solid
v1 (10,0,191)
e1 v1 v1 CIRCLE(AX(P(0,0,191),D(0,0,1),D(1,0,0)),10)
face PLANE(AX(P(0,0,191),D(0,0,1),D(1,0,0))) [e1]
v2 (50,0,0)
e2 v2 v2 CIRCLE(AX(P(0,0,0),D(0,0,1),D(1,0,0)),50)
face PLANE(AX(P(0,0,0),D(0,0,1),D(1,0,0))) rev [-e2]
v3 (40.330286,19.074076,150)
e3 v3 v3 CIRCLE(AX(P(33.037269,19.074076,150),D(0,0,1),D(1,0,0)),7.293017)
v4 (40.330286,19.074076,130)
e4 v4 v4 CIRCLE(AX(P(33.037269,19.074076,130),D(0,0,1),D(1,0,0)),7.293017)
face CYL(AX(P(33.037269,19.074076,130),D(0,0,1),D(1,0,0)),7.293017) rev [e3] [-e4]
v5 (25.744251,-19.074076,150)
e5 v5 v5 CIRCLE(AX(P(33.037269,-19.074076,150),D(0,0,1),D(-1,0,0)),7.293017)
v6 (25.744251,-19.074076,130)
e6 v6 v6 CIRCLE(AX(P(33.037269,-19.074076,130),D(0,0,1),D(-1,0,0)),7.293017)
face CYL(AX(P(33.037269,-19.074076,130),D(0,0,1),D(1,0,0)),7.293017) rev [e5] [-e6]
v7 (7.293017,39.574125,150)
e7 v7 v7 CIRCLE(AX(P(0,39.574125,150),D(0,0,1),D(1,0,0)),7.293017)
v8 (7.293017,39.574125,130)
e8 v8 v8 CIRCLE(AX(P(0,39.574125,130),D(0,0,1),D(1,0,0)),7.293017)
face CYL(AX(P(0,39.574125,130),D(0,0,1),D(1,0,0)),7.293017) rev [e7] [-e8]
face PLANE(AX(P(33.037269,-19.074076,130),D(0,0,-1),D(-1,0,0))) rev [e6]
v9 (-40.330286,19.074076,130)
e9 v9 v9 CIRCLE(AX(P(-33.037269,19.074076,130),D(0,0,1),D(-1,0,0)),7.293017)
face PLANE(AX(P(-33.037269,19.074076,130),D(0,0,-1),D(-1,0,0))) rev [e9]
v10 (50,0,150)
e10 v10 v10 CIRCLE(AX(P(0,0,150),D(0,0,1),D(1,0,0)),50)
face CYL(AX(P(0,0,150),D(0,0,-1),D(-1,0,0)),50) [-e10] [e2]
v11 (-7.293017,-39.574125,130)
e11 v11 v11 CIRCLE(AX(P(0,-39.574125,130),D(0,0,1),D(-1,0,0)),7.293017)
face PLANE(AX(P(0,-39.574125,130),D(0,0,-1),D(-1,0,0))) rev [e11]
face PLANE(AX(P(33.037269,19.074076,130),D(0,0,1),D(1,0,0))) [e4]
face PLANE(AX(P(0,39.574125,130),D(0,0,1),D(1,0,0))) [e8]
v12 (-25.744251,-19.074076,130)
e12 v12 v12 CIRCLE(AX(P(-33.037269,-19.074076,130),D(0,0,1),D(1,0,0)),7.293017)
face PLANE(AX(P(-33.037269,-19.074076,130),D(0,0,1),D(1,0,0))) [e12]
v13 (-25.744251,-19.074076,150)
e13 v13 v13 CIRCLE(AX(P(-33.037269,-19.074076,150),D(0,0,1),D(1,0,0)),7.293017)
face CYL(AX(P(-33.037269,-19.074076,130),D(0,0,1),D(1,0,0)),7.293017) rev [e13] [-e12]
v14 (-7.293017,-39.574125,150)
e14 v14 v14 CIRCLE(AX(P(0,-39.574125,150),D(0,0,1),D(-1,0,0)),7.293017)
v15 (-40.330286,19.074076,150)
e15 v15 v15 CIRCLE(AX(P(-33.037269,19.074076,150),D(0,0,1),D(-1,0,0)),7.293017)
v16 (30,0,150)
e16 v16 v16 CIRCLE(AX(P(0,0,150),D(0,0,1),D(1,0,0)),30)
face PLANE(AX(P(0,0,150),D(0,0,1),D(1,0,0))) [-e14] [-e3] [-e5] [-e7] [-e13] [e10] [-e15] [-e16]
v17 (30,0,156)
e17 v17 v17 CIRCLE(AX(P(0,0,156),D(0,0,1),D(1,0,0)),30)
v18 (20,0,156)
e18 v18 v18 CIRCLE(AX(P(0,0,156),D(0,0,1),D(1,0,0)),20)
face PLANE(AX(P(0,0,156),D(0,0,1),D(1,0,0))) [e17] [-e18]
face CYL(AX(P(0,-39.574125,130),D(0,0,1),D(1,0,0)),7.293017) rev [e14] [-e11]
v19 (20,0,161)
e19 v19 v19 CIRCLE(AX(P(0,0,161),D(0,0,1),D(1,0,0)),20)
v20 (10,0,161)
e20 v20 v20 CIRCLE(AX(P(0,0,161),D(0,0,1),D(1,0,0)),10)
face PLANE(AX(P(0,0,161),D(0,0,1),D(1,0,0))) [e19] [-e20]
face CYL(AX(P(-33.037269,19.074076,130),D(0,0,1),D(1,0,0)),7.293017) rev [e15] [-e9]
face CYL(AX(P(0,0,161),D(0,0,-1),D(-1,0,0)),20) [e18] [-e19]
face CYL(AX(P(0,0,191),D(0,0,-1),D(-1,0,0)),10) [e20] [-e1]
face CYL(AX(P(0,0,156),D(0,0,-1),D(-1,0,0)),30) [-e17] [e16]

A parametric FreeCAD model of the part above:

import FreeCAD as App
import Part
import Sketcher

V = App.Vector

doc = App.newDocument("Part")
params = doc.addObject("Spreadsheet::Sheet", "Params")
for row, (alias, value) in enumerate([
    ("sketch1_diameter", "100 mm"),
    ("pad1_length", "150 mm"),
    ("sketch2_diameter", "60 mm"),
    ("pad2_length", "6 mm"),
    ("sketch3_diameter", "40 mm"),
    ("pad3_length", "5 mm"),
    ("sketch4_diameter", "20 mm"),
    ("pad4_length", "30 mm"),
    ("pocket1_length", "20 mm"),
], start=1):
    params.set(f"A{row}", alias)
    params.set(f"B{row}", "=" + value)
    params.setAlias(f"B{row}", alias)

body = doc.addObject("PartDesign::Body", "Body")

# Sketch on XY plane
sketch1 = body.newObject("Sketcher::SketchObject", "Sketch")
sketch1.AttachmentSupport = (doc.getObject("XY_Plane"), [""])
sketch1.MapMode = "FlatFace"
sketch1.addGeometry(Part.Circle(V(0, 0, 0), V(0, 0, 1), 50), False)
sketch1.addConstraint([
    Sketcher.Constraint("Coincident", 0, 3, -1, 1),
    Sketcher.Constraint("Diameter", 0, 100.0),
])
sketch1.setExpression("Constraints[1]", "Params.sketch1_diameter")
pad1 = body.newObject("PartDesign::Pad", "Pad")
pad1.Profile = sketch1
pad1.setExpression("Length", "Params.pad1_length")

# Sketch on XY plane
sketch2 = body.newObject("Sketcher::SketchObject", "Sketch001")
sketch2.AttachmentSupport = (doc.getObject("XY_Plane"), [""])
sketch2.MapMode = "FlatFace"
sketch2.AttachmentOffset = App.Placement(V(0, 0, 150), App.Rotation())
sketch2.addGeometry(Part.Circle(V(0, 0, 0), V(0, 0, 1), 30), False)
sketch2.addConstraint([
    Sketcher.Constraint("Coincident", 0, 3, -1, 1),
    Sketcher.Constraint("Diameter", 0, 60.0),
])
sketch2.setExpression("Constraints[1]", "Params.sketch2_diameter")
pad2 = body.newObject("PartDesign::Pad", "Pad001")
pad2.Profile = sketch2
pad2.setExpression("Length", "Params.pad2_length")

# Sketch on XY plane
sketch3 = body.newObject("Sketcher::SketchObject", "Sketch002")
sketch3.AttachmentSupport = (doc.getObject("XY_Plane"), [""])
sketch3.MapMode = "FlatFace"
sketch3.AttachmentOffset = App.Placement(V(0, 0, 156), App.Rotation())
sketch3.addGeometry(Part.Circle(V(0, 0, 0), V(0, 0, 1), 20), False)
sketch3.addConstraint([
    Sketcher.Constraint("Coincident", 0, 3, -1, 1),
    Sketcher.Constraint("Diameter", 0, 40.0),
])
sketch3.setExpression("Constraints[1]", "Params.sketch3_diameter")
pad3 = body.newObject("PartDesign::Pad", "Pad002")
pad3.Profile = sketch3
pad3.setExpression("Length", "Params.pad3_length")

# Sketch on XY plane
sketch4 = body.newObject("Sketcher::SketchObject", "Sketch003")
sketch4.AttachmentSupport = (doc.getObject("XY_Plane"), [""])
sketch4.MapMode = "FlatFace"
sketch4.AttachmentOffset = App.Placement(V(0, 0, 161), App.Rotation())
sketch4.addGeometry(Part.Circle(V(0, 0, 0), V(0, 0, 1), 10), False)
sketch4.addConstraint([
    Sketcher.Constraint("Coincident", 0, 3, -1, 1),
    Sketcher.Constraint("Diameter", 0, 20.0),
])
sketch4.setExpression("Constraints[1]", "Params.sketch4_diameter")
pad4 = body.newObject("PartDesign::Pad", "Pad003")
pad4.Profile = sketch4
pad4.setExpression("Length", "Params.pad4_length")

# Sketch on XY plane
sketch5 = body.newObject("Sketcher::SketchObject", "Sketch004")
sketch5.AttachmentSupport = (doc.getObject("XY_Plane"), [""])
sketch5.MapMode = "FlatFace"
sketch5.AttachmentOffset = App.Placement(V(0, 0, 150), App.Rotation())
sketch5.addGeometry([
    Part.Circle(V(0, 40, 0), V(0, 0, 1), 7),  # 0
    Part.Circle(V(33, 19, 0), V(0, 0, 1), 7),  # 1
    Part.Circle(V(0, -40, 0), V(0, 0, 1), 7),  # 2
    Part.Circle(V(-33, 19, 0), V(0, 0, 1), 7),  # 3
    Part.Circle(V(33, -19, 0), V(0, 0, 1), 7),  # 4
    Part.Circle(V(-33, -19, 0), V(0, 0, 1), 7),  # 5
], False)
sketch5.addConstraint([
    Sketcher.Constraint("Equal", 0, 1),
    Sketcher.Constraint("Equal", 1, 2),
    Sketcher.Constraint("Equal", 2, 3),
    Sketcher.Constraint("Equal", 3, 4),
    Sketcher.Constraint("Equal", 4, 5),
    Sketcher.Constraint("Symmetric", 0, 3, 2, 3, -1, 1),
    Sketcher.Constraint("Symmetric", 3, 3, 4, 3, -1, 1),
    Sketcher.Constraint("Symmetric", 1, 3, 5, 3, -1, 1),
    Sketcher.Constraint("Symmetric", 1, 3, 3, 3, -2),
    Sketcher.Constraint("PointOnObject", 0, 3, -2),
    Sketcher.Constraint("Diameter", 0, 14.586034),
    Sketcher.Constraint("DistanceY", 2, 3, 1, 3, 58.648201),
    Sketcher.Constraint("DistanceX", -1, 1, 1, 3, 33.037269),
    Sketcher.Constraint("DistanceY", 1, 3, 0, 3, 20.500049),
])
pocket1 = body.newObject("PartDesign::Pocket", "Pocket")
pocket1.Profile = sketch5
pocket1.setExpression("Length", "Params.pocket1_length")

doc.recompute()
